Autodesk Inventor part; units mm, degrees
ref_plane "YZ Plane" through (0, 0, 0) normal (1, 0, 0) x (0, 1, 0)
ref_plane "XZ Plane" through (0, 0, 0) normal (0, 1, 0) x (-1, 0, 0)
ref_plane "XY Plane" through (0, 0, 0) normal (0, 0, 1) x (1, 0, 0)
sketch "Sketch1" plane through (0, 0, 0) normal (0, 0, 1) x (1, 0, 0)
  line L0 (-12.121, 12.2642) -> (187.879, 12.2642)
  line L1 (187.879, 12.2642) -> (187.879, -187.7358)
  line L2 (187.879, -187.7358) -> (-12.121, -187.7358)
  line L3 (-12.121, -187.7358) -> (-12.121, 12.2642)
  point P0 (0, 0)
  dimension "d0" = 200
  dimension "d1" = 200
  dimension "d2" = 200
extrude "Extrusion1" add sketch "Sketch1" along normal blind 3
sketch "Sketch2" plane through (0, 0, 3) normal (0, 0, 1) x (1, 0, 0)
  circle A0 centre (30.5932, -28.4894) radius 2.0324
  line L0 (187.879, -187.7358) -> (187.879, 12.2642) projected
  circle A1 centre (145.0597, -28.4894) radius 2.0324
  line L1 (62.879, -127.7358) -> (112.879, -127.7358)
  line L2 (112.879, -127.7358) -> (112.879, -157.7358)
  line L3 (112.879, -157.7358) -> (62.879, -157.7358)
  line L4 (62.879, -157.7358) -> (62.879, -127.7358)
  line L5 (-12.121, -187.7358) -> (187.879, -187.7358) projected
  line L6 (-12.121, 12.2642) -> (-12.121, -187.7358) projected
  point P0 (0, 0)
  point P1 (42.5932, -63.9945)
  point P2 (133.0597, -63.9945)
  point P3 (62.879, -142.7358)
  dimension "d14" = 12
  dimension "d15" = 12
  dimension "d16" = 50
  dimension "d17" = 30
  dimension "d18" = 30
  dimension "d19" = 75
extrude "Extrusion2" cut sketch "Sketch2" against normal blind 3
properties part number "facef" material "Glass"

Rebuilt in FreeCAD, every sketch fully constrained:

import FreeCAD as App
import Part
import Sketcher
from FreeCAD import Vector

doc = App.newDocument("Part")
body = doc.addObject("PartDesign::Body", "Body")

# Sketch on XY plane
sketch1 = body.newObject("Sketcher::SketchObject", "Sketch")
sketch1.AttachmentSupport = (doc.getObject("XY_Plane"), [""])
sketch1.MapMode = "FlatFace"
sketch1.addGeometry(Part.LineSegment(Vector(188, 12, 0), Vector(-12, 12, 0)), False)
sketch1.addGeometry(Part.LineSegment(Vector(-12, 12, 0), Vector(-12, -188, 0)), False)
sketch1.addGeometry(Part.LineSegment(Vector(-12, -188, 0), Vector(188, -188, 0)), False)
sketch1.addGeometry(Part.LineSegment(Vector(188, -188, 0), Vector(188, 12, 0)), False)
sketch1.addConstraint(Sketcher.Constraint("Coincident", 0, 2, 1, 1))
sketch1.addConstraint(Sketcher.Constraint("Coincident", 1, 2, 2, 1))
sketch1.addConstraint(Sketcher.Constraint("Coincident", 2, 2, 3, 1))
sketch1.addConstraint(Sketcher.Constraint("Coincident", 3, 2, 0, 1))
sketch1.addConstraint(Sketcher.Constraint("Horizontal", 0))
sketch1.addConstraint(Sketcher.Constraint("Vertical", 1))
sketch1.addConstraint(Sketcher.Constraint("Horizontal", 2))
sketch1.addConstraint(Sketcher.Constraint("Vertical", 3))
sketch1.addConstraint(Sketcher.Constraint("Equal", 2, 1))
sketch1.addConstraint(Sketcher.Constraint("DistanceX", 0, 2, 0, 1, 200.0))
sketch1.addConstraint(Sketcher.Constraint("DistanceX", 0, 2, -1, 1, 12.121))
sketch1.addConstraint(Sketcher.Constraint("DistanceY", -1, 1, 0, 2, 12.2642))
pad1 = body.newObject("PartDesign::Pad", "Pad")
pad1.Profile = sketch1
pad1.Length = 3

# Sketch on XY plane
sketch2 = body.newObject("Sketcher::SketchObject", "Sketch001")
sketch2.AttachmentSupport = (doc.getObject("XY_Plane"), [""])
sketch2.MapMode = "FlatFace"
sketch2.AttachmentOffset = App.Placement(Vector(0, 0, 3), App.Rotation())
sketch2.addGeometry(Part.Circle(Vector(30.6, -28.5, 0), Vector(0, 0, 1), 2), False)
sketch2.addGeometry(Part.Circle(Vector(145.1, -28.5, 0), Vector(0, 0, 1), 2), False)
sketch2.addGeometry(Part.LineSegment(Vector(112.9, -127.7, 0), Vector(62.9, -127.7, 0)), False)
sketch2.addGeometry(Part.LineSegment(Vector(62.9, -127.7, 0), Vector(62.9, -157.7, 0)), False)
sketch2.addGeometry(Part.LineSegment(Vector(62.9, -157.7, 0), Vector(112.9, -157.7, 0)), False)
sketch2.addGeometry(Part.LineSegment(Vector(112.9, -157.7, 0), Vector(112.9, -127.7, 0)), False)
sketch2.addConstraint(Sketcher.Constraint("Coincident", 2, 2, 3, 1))
sketch2.addConstraint(Sketcher.Constraint("Coincident", 3, 2, 4, 1))
sketch2.addConstraint(Sketcher.Constraint("Coincident", 4, 2, 5, 1))
sketch2.addConstraint(Sketcher.Constraint("Coincident", 5, 2, 2, 1))
sketch2.addConstraint(Sketcher.Constraint("Horizontal", 2))
sketch2.addConstraint(Sketcher.Constraint("Vertical", 3))
sketch2.addConstraint(Sketcher.Constraint("Horizontal", 4))
sketch2.addConstraint(Sketcher.Constraint("Vertical", 5))
sketch2.addConstraint(Sketcher.Constraint("Equal", 0, 1))
sketch2.addConstraint(Sketcher.Constraint("Horizontal", 0, 3, 1, 3))
sketch2.addConstraint(Sketcher.Constraint("DistanceX", 2, 2, 2, 1, 50.0))
sketch2.addConstraint(Sketcher.Constraint("DistanceY", 3, 2, 3, 1, 30.0))
sketch2.addConstraint(Sketcher.Constraint("Diameter", 0, 4.0648))
sketch2.addConstraint(Sketcher.Constraint("DistanceX", -1, 1, 2, 2, 62.879))
sketch2.addConstraint(Sketcher.Constraint("DistanceX", -1, 1, 0, 3, 30.5932))
sketch2.addConstraint(Sketcher.Constraint("DistanceY", 0, 3, -1, 1, 28.4894))
sketch2.addConstraint(Sketcher.Constraint("DistanceX", -1, 1, 1, 3, 145.0597))
sketch2.addConstraint(Sketcher.Constraint("DistanceY", 2, 2, -1, 1, 127.7358))
pocket1 = body.newObject("PartDesign::Pocket", "Pocket")
pocket1.Profile = sketch2
pocket1.Length = 3

doc.recompute()
